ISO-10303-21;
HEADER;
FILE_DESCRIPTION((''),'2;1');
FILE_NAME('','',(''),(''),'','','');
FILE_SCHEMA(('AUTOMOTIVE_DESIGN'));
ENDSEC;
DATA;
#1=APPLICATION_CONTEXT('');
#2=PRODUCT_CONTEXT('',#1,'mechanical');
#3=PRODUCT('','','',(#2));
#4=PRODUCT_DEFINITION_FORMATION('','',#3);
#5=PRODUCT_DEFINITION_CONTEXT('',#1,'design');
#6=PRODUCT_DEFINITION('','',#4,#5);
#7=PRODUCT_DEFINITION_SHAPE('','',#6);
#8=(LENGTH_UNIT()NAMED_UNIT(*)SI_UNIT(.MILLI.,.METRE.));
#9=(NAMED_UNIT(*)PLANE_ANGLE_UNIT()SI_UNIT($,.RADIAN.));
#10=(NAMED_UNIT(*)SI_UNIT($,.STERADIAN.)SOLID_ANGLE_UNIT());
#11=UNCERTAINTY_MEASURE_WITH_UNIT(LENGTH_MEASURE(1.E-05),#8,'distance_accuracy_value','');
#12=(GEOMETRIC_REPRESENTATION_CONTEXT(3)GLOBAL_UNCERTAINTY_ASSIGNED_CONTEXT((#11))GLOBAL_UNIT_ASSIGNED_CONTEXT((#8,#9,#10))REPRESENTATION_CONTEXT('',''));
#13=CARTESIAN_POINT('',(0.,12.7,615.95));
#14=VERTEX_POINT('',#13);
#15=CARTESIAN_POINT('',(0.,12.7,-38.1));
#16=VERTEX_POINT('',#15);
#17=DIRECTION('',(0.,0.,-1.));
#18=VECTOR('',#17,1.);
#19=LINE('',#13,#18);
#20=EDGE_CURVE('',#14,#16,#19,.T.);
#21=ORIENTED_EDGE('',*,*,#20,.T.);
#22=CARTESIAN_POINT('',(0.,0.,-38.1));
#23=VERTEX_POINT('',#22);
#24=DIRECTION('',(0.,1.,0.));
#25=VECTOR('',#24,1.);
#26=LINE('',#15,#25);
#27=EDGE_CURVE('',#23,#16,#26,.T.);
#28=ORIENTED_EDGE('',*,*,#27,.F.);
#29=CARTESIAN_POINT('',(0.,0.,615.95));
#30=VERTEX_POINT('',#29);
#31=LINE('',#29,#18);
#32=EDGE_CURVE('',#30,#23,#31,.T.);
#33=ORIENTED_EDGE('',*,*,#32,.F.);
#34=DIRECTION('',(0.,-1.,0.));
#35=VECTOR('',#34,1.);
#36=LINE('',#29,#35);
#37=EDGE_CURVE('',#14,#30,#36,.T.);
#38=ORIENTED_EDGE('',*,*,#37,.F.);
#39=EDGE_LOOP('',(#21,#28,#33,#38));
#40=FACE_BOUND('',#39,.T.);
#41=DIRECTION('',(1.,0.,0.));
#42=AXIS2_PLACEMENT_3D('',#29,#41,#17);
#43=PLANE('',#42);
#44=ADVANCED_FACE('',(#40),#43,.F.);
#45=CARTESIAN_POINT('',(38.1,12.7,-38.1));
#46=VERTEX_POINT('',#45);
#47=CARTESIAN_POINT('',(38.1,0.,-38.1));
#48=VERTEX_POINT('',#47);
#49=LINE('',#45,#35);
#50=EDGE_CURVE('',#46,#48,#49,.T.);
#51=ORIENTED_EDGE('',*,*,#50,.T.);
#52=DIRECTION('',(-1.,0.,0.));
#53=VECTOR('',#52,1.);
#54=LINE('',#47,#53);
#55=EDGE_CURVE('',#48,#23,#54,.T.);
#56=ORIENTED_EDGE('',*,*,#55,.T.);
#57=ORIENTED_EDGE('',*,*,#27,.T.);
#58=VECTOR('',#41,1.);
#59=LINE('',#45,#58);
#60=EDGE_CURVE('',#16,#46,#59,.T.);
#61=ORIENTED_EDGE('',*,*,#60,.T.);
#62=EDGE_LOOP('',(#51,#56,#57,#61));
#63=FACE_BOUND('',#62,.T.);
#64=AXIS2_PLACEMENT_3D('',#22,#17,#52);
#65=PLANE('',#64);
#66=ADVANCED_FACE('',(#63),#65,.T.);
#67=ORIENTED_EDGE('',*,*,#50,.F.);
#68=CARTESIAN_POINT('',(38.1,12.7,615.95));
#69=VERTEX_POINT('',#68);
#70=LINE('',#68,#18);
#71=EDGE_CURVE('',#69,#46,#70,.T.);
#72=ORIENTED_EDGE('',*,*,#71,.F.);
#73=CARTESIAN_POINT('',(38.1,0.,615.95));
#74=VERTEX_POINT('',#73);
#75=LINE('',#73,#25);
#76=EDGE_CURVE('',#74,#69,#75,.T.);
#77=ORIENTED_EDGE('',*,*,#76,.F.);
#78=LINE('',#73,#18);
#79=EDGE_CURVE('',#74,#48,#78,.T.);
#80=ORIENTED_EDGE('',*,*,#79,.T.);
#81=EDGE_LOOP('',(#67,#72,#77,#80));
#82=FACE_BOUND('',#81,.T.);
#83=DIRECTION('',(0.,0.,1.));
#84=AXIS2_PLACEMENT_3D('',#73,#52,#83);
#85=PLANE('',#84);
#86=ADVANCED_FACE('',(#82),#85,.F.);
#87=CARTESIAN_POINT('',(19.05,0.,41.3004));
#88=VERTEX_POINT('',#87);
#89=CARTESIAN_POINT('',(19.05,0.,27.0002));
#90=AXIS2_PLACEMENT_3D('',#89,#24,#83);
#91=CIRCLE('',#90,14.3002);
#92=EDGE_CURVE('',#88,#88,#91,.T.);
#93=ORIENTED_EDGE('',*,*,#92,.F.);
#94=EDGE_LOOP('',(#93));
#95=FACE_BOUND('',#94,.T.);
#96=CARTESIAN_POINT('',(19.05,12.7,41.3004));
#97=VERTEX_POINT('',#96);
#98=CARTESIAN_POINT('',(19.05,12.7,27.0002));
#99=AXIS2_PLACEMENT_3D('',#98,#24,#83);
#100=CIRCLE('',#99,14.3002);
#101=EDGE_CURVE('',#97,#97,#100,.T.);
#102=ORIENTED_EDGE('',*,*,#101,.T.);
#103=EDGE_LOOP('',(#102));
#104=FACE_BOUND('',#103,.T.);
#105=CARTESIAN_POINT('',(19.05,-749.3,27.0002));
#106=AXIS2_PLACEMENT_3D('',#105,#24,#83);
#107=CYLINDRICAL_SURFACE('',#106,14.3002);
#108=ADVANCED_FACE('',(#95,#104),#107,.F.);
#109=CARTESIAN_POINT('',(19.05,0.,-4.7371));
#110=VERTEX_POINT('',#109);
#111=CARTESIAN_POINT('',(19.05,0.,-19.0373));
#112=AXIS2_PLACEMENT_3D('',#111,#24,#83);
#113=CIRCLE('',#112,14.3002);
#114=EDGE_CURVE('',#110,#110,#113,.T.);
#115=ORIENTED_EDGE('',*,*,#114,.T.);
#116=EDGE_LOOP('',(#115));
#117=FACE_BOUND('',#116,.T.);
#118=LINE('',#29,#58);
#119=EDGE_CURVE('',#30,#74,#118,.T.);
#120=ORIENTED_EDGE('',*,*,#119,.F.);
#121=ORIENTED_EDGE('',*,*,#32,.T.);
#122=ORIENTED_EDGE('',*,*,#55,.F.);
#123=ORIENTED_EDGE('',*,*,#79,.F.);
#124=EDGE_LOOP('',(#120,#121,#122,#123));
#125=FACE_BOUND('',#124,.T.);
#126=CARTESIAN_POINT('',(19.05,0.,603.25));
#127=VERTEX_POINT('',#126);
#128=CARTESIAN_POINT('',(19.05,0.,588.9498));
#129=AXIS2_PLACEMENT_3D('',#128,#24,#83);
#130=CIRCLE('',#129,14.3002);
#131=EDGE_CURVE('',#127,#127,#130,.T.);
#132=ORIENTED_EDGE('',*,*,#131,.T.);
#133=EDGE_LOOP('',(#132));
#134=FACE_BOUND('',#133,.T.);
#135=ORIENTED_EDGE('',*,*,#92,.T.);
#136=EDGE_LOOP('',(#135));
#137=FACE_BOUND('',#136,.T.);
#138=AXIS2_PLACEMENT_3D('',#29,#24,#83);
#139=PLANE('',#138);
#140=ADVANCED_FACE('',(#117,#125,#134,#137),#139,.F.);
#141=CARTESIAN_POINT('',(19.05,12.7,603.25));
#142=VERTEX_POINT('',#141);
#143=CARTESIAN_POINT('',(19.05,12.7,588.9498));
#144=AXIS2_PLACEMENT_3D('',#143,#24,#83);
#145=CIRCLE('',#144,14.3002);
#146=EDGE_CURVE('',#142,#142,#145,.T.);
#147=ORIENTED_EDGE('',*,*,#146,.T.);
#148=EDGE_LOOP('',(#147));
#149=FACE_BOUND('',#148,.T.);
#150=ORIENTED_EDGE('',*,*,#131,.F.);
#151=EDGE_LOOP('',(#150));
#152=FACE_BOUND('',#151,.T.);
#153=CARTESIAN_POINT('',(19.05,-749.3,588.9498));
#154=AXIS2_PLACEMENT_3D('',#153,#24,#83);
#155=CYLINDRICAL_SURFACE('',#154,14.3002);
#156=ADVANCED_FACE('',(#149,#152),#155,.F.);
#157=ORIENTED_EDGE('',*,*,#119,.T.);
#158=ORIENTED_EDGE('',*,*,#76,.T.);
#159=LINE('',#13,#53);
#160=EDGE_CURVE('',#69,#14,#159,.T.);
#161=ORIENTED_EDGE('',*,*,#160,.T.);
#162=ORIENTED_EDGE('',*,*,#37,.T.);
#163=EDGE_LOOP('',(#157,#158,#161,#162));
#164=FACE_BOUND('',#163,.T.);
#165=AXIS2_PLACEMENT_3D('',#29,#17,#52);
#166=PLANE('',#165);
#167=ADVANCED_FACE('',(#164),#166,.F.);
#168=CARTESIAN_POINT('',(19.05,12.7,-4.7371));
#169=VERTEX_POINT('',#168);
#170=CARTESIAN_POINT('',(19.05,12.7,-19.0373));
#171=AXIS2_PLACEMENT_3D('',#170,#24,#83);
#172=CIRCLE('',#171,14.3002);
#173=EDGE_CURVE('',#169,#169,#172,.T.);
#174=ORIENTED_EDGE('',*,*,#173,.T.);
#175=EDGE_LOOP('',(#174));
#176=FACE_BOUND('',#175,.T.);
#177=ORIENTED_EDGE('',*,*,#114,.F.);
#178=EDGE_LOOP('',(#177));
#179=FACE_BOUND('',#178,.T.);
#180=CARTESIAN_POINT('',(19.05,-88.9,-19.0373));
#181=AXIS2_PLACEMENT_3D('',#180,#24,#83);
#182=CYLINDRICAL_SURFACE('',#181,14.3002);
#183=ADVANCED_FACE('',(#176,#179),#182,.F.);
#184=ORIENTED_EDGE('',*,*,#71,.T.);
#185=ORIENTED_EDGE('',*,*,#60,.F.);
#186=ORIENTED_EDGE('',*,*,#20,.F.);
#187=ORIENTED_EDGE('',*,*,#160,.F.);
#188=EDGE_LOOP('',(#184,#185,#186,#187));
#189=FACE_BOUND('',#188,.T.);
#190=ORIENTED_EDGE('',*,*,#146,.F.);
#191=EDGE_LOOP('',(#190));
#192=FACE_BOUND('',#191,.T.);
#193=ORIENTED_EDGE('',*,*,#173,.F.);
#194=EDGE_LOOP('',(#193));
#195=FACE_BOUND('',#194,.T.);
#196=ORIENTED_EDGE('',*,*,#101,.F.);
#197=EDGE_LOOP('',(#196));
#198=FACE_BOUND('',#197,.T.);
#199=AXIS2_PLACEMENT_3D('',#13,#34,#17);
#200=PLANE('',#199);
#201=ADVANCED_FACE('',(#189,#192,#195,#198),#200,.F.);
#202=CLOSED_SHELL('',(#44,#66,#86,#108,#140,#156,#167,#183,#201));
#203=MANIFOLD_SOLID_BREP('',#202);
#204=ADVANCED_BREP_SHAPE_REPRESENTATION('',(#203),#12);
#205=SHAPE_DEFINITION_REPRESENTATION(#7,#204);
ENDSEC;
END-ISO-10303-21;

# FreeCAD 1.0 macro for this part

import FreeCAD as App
import Part
import Sketcher

V = App.Vector
Q = App.Units.Quantity


def add_polygon(sketch, points):
    """Adds a closed chain of lines whose ends are joined by coincident constraints."""
    first, n = sketch.GeometryCount, len(points)
    for a, b in zip(points, points[1:] + points[:1]):
        sketch.addGeometry(Part.LineSegment(App.Vector(*a, 0), App.Vector(*b, 0)), False)
    for i in range(n):
        sketch.addConstraint(Sketcher.Constraint("Coincident", first + i, 2, first + (i + 1) % n, 1))

doc = App.newDocument("Part")
body = doc.addObject("PartDesign::Body", "Body")

# Sketch on XY plane
sketch1 = body.newObject("Sketcher::SketchObject", "Sketch")
sketch1.AttachmentSupport = (doc.getObject("XY_Plane"), [""])
sketch1.MapMode = "FlatFace"
add_polygon(sketch1, [(0, 13), (0, 0), (38, 0), (38, 13)])  # lines 0-3
sketch1.addConstraint(Sketcher.Constraint("Vertical", 0))
sketch1.addConstraint(Sketcher.Constraint("Horizontal", 1))
sketch1.addConstraint(Sketcher.Constraint("Vertical", 2))
sketch1.addConstraint(Sketcher.Constraint("Horizontal", 3))
sketch1.addConstraint(Sketcher.Constraint("Coincident", 0, 2, -1, 1))
sketch1.addConstraint(Sketcher.Constraint("DistanceX", 1, 1, 1, 2, Q("1.5 in")))
sketch1.addConstraint(Sketcher.Constraint("DistanceY", 0, 2, 0, 1, Q("0.5 in")))
pad1 = body.newObject("PartDesign::Pad", "Pad")
pad1.Profile = sketch1
pad1.Length = Q("24.25 in")

# Sketch on XZ plane
sketch2 = body.newObject("Sketcher::SketchObject", "Sketch001")
sketch2.AttachmentSupport = (doc.getObject("XZ_Plane"), [""])
sketch2.MapMode = "FlatFace"
sketch2.AttachmentOffset = App.Placement(V(0, 0, -0.5 * 25.4), App.Rotation())
sketch2.addGeometry(Part.Circle(V(19, 589, 0), V(0, 0, 1), 14), False)
sketch2.addGeometry(Part.Circle(V(19, 27, 0), V(0, 0, 1), 14), False)
sketch2.addConstraint(Sketcher.Constraint("Equal", 0, 1))
sketch2.addConstraint(Sketcher.Constraint("Vertical", 0, 3, 1, 3))
sketch2.addConstraint(Sketcher.Constraint("Diameter", 0, Q("1.126 in")))
sketch2.addConstraint(Sketcher.Constraint("DistanceX", -1, 1, 0, 3, Q("0.75 in")))
sketch2.addConstraint(Sketcher.Constraint("DistanceY", -1, 1, 0, 3, Q("23.187 in")))
sketch2.addConstraint(Sketcher.Constraint("DistanceY", -1, 1, 1, 3, Q("1.063 in")))
pocket1 = body.newObject("PartDesign::Pocket", "Pocket")
pocket1.Profile = sketch2
pocket1.Length = Q("30 in")
pocket1.Reversed = True

# Sketch on XY plane
sketch3 = body.newObject("Sketcher::SketchObject", "Sketch002")
sketch3.AttachmentSupport = (doc.getObject("XY_Plane"), [""])
sketch3.MapMode = "FlatFace"
add_polygon(sketch3, [(38, 13), (38, 0), (0, 0), (0, 13)])  # lines 0-3
sketch3.addConstraint(Sketcher.Constraint("Vertical", 0))
sketch3.addConstraint(Sketcher.Constraint("Horizontal", 1))
sketch3.addConstraint(Sketcher.Constraint("Vertical", 2))
sketch3.addConstraint(Sketcher.Constraint("Horizontal", 3))
sketch3.addConstraint(Sketcher.Constraint("Coincident", 1, 2, -1, 1))
sketch3.addConstraint(Sketcher.Constraint("DistanceX", 1, 2, 1, 1, Q("1.5 in")))
sketch3.addConstraint(Sketcher.Constraint("DistanceY", 0, 2, 0, 1, Q("0.5 in")))
pad2 = body.newObject("PartDesign::Pad", "Pad001")
pad2.Profile = sketch3
pad2.Length = Q("1.5 in")
pad2.Reversed = True

# Sketch on XZ plane
sketch4 = body.newObject("Sketcher::SketchObject", "Sketch003")
sketch4.AttachmentSupport = (doc.getObject("XZ_Plane"), [""])
sketch4.MapMode = "FlatFace"
sketch4.AttachmentOffset = App.Placement(V(0, 0, -0.5 * 25.4), App.Rotation())
sketch4.addGeometry(Part.Circle(V(19, -19, 0), V(0, 0, 1), 14), False)
sketch4.addConstraint(Sketcher.Constraint("Diameter", 0, Q("1.126 in")))
sketch4.addConstraint(Sketcher.Constraint("DistanceX", -1, 1, 0, 3, Q("0.75 in")))
sketch4.addConstraint(Sketcher.Constraint("DistanceY", 0, 3, -1, 1, Q("0.7495 in")))
pocket2 = body.newObject("PartDesign::Pocket", "Pocket001")
pocket2.Profile = sketch4
pocket2.Length = Q("4 in")
pocket2.Reversed = True

doc.recompute()
